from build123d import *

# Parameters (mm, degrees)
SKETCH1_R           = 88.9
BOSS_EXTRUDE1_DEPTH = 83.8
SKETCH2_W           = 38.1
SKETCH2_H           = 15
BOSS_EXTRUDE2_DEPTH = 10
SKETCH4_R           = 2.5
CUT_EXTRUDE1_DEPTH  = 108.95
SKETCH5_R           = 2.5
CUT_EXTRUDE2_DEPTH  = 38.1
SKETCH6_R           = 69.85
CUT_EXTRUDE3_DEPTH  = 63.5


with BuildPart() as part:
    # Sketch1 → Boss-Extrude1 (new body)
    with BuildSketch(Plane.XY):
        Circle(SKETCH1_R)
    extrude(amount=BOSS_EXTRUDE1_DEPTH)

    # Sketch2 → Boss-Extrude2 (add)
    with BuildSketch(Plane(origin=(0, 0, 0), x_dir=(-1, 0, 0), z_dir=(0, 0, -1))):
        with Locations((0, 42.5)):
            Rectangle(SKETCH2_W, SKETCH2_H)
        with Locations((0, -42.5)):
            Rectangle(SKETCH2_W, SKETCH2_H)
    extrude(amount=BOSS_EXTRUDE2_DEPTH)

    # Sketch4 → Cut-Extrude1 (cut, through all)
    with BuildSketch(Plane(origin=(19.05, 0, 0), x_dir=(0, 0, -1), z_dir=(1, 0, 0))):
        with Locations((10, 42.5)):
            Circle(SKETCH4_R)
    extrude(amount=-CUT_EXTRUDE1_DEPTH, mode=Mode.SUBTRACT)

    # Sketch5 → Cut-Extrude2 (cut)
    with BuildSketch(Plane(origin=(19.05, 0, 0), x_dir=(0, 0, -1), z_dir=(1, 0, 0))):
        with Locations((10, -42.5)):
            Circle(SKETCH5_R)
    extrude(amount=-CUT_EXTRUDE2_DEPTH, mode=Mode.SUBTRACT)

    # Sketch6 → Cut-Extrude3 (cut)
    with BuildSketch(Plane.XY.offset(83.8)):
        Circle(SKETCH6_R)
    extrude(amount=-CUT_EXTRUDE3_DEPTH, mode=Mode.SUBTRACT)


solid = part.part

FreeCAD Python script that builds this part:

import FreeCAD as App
import Part
import Sketcher
from FreeCAD import Vector


def add_polygon(sketch, points):
    """Adds a closed chain of lines whose ends are joined by coincident constraints."""
    first, n = sketch.GeometryCount, len(points)
    for a, b in zip(points, points[1:] + points[:1]):
        sketch.addGeometry(Part.LineSegment(App.Vector(*a, 0), App.Vector(*b, 0)), False)
    for i in range(n):
        sketch.addConstraint(Sketcher.Constraint("Coincident", first + i, 2, first + (i + 1) % n, 1))

doc = App.newDocument("Part")
body = doc.addObject("PartDesign::Body", "Body")

sketch1 = doc.addObject("Sketcher::SketchObject", "Sketch")
body.addObject(sketch1)
sketch1.AttachmentSupport = (doc.XY_Plane, [""])
sketch1.MapMode = "FlatFace"
sketch1.addGeometry(Part.Circle(Vector(0, 0, 0), Vector(0, 0, 1), 89), False)
sketch1.addConstraint([
    Sketcher.Constraint("Coincident", 0, 3, -1, 1),
    Sketcher.Constraint("Diameter", 0, 177.8),
])
pad1 = doc.addObject("PartDesign::Pad", "Pad")
body.addObject(pad1)
pad1.Profile = sketch1
pad1.Length = 83.8

sketch2 = doc.addObject("Sketcher::SketchObject", "Sketch001")
body.addObject(sketch2)
sketch2.AttachmentSupport = (doc.XY_Plane, [""])
sketch2.MapMode = "FlatFace"
add_polygon(sketch2, [(19, 50), (19, 35), (-19, 35), (-19, 50)])
add_polygon(sketch2, [(19, -35), (19, -50), (-19, -50), (-19, -35)])
sketch2.addConstraint([
    Sketcher.Constraint("Vertical", 0),
    Sketcher.Constraint("Horizontal", 1),
    Sketcher.Constraint("Vertical", 2),
    Sketcher.Constraint("Horizontal", 3),
    Sketcher.Constraint("Vertical", 4),
    Sketcher.Constraint("Horizontal", 5),
    Sketcher.Constraint("Vertical", 6),
    Sketcher.Constraint("Horizontal", 7),
    Sketcher.Constraint("Symmetric", 2, 2, 4, 2, -1, 1),
    Sketcher.Constraint("Symmetric", 0, 2, 6, 2, -1, 1),
    Sketcher.Constraint("Vertical", 3, 2, 4, 2),
    Sketcher.Constraint("DistanceY", 0, 2, 0, 1, 15.0),
    Sketcher.Constraint("DistanceX", 1, 2, 1, 1, 38.1),
    Sketcher.Constraint("DistanceY", -1, 1, 0, 2, 35.0),
])
pad2 = doc.addObject("PartDesign::Pad", "Pad001")
body.addObject(pad2)
pad2.Profile = sketch2
pad2.Length = 10
pad2.Reversed = True

sketch3 = doc.addObject("Sketcher::SketchObject", "Sketch002")
body.addObject(sketch3)
sketch3.AttachmentSupport = (doc.YZ_Plane, [""])
sketch3.MapMode = "FlatFace"
sketch3.AttachmentOffset = App.Placement(Vector(0, 0, 19.05), App.Rotation())
sketch3.addGeometry(Part.Circle(Vector(42.5, -10, 0), Vector(0, 0, 1), 2.5), False)
sketch3.addConstraint([
    Sketcher.Constraint("Diameter", 0, 5.0),
    Sketcher.Constraint("DistanceY", 0, 3, -1, 1, 10.0),
    Sketcher.Constraint("DistanceX", -1, 1, 0, 3, 42.5),
])
pocket1 = doc.addObject("PartDesign::Pocket", "Pocket")
body.addObject(pocket1)
pocket1.Profile = sketch3
pocket1.Type = "ThroughAll"

sketch4 = doc.addObject("Sketcher::SketchObject", "Sketch003")
body.addObject(sketch4)
sketch4.AttachmentSupport = (doc.YZ_Plane, [""])
sketch4.MapMode = "FlatFace"
sketch4.AttachmentOffset = App.Placement(Vector(0, 0, 19.05), App.Rotation())
sketch4.addGeometry(Part.Circle(Vector(-42.5, -10, 0), Vector(0, 0, 1), 2.5), False)
sketch4.addConstraint([
    Sketcher.Constraint("Diameter", 0, 5.0),
    Sketcher.Constraint("DistanceY", 0, 3, -1, 1, 10.0),
    Sketcher.Constraint("DistanceX", 0, 3, -1, 1, 42.5),
])
pocket2 = doc.addObject("PartDesign::Pocket", "Pocket001")
body.addObject(pocket2)
pocket2.Profile = sketch4
pocket2.Length = 38.1

sketch5 = doc.addObject("Sketcher::SketchObject", "Sketch004")
body.addObject(sketch5)
sketch5.AttachmentSupport = (doc.XY_Plane, [""])
sketch5.MapMode = "FlatFace"
sketch5.AttachmentOffset = App.Placement(Vector(0, 0, 83.8), App.Rotation())
sketch5.addGeometry(Part.Circle(Vector(0, 0, 0), Vector(0, 0, 1), 70), False)
sketch5.addConstraint([
    Sketcher.Constraint("Coincident", 0, 3, -1, 1),
    Sketcher.Constraint("Diameter", 0, 139.7),
])
pocket3 = doc.addObject("PartDesign::Pocket", "Pocket002")
body.addObject(pocket3)
pocket3.Profile = sketch5
pocket3.Length = 63.5

doc.recompute()
